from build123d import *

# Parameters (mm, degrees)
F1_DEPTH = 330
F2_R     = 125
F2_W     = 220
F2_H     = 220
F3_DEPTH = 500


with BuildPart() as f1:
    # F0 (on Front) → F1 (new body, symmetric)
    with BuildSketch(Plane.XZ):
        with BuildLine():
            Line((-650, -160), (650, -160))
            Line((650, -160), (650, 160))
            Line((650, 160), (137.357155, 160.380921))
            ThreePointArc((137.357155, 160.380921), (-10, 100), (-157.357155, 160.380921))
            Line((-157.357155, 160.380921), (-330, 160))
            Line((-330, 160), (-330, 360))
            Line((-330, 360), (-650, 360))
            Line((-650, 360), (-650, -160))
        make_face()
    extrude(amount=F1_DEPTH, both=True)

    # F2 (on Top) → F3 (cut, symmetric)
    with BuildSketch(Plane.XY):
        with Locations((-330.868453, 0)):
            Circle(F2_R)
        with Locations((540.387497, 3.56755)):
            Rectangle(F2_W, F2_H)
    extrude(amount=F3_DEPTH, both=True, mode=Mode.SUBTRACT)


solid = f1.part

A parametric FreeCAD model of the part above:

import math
import FreeCAD as App
import Part
import Sketcher
Q = App.Units.Quantity

doc = App.newDocument("Part")
body = doc.addObject("PartDesign::Body", "Body")

sketch1 = body.newObject("Sketcher::SketchObject", "Sketch")
sketch1.AttachmentSupport = (doc.getObject("XZ_Plane"), [""])
sketch1.MapMode = "FlatFace"
sketch1.addGeometry([
    Part.LineSegment(App.Vector(-650, -160, 0), App.Vector(650, -160, 0)),
    Part.LineSegment(App.Vector(650, -160, 0), App.Vector(650, 160, 0)),
    Part.LineSegment(App.Vector(650, 160, 0), App.Vector(137, 160, 0)),
    Part.ArcOfCircle(Part.Circle(App.Vector(-10, 310, 0), App.Vector(0, 0, 1), 210), math.radians(-135), math.radians(-45)),
    Part.LineSegment(App.Vector(-157, 160, 0), App.Vector(-330, 160, 0)),
    Part.LineSegment(App.Vector(-330, 160, 0), App.Vector(-330, 360, 0)),
    Part.LineSegment(App.Vector(-330, 360, 0), App.Vector(-650, 360, 0)),
    Part.LineSegment(App.Vector(-650, 360, 0), App.Vector(-650, -160, 0)),
], False)
sketch1.addConstraint([
    Sketcher.Constraint("Coincident", 0, 2, 1, 1),
    Sketcher.Constraint("Coincident", 1, 2, 2, 1),
    Sketcher.Constraint("Coincident", 2, 2, 3, 2),
    Sketcher.Constraint("Coincident", 3, 1, 4, 1),
    Sketcher.Constraint("Coincident", 4, 2, 5, 1),
    Sketcher.Constraint("Coincident", 5, 2, 6, 1),
    Sketcher.Constraint("Coincident", 6, 2, 7, 1),
    Sketcher.Constraint("Coincident", 7, 2, 0, 1),
    Sketcher.Constraint("Horizontal", 0),
    Sketcher.Constraint("Vertical", 1),
    Sketcher.Constraint("Vertical", 5),
    Sketcher.Constraint("Horizontal", 6),
    Sketcher.Constraint("Vertical", 7),
    Sketcher.Constraint("Symmetric", 1, 2, 7, 2, -1, 1),
    Sketcher.Constraint("Horizontal", 2, 2, 3, 1),
    Sketcher.Constraint("Horizontal", 1, 2, 4, 2),
    Sketcher.Constraint("Equal", 6, 1),
    Sketcher.Constraint("Radius", 3, Q("209.999999 mm")),
    Sketcher.Constraint("DistanceX", 0, 1, 0, 2, Q("1300 mm")),
    Sketcher.Constraint("DistanceX", 6, 2, 6, 1, Q("320 mm")),
    Sketcher.Constraint("DistanceY", 5, 1, 5, 2, Q("200 mm")),
    Sketcher.Constraint("DistanceX", 3, 3, -1, 1, Q("10 mm")),
    Sketcher.Constraint("DistanceY", -1, 1, 3, 3, Q("309.999999 mm")),
    Sketcher.Constraint("DistanceY", -1, 1, 2, 2, Q("160.380921 mm")),
])
pad1 = body.newObject("PartDesign::Pad", "Pad")
pad1.Profile = sketch1
pad1.Length = 660
pad1.Midplane = True

sketch2 = body.newObject("Sketcher::SketchObject", "Sketch001")
sketch2.AttachmentSupport = (doc.getObject("XY_Plane"), [""])
sketch2.MapMode = "FlatFace"
sketch2.addGeometry([
    Part.Circle(App.Vector(-331, 0, 0), App.Vector(0, 0, 1), 125),
    Part.LineSegment(App.Vector(430, 114, 0), App.Vector(430, -106, 0)),
    Part.LineSegment(App.Vector(430, -106, 0), App.Vector(650, -106, 0)),
    Part.LineSegment(App.Vector(650, -106, 0), App.Vector(650, 114, 0)),
    Part.LineSegment(App.Vector(650, 114, 0), App.Vector(430, 114, 0)),
], False)
sketch2.addConstraint([
    Sketcher.Constraint("Coincident", 1, 2, 2, 1),
    Sketcher.Constraint("Coincident", 2, 2, 3, 1),
    Sketcher.Constraint("Coincident", 3, 2, 4, 1),
    Sketcher.Constraint("Coincident", 4, 2, 1, 1),
    Sketcher.Constraint("Vertical", 1),
    Sketcher.Constraint("Horizontal", 2),
    Sketcher.Constraint("Vertical", 3),
    Sketcher.Constraint("Horizontal", 4),
    Sketcher.Constraint("PointOnObject", 0, 3, -1),
    Sketcher.Constraint("Equal", 4, 1),
    Sketcher.Constraint("Diameter", 0, Q("250 mm")),
    Sketcher.Constraint("DistanceX", 2, 1, 2, 2, Q("220 mm")),
    Sketcher.Constraint("DistanceY", 1, 2, -1, 1, Q("106.43245 mm")),
    Sketcher.Constraint("DistanceX", 0, 3, 1, 2, Q("761.25595 mm")),
    Sketcher.Constraint("DistanceX", 0, 3, -1, 1, Q("330.868453 mm")),
])
pocket1 = body.newObject("PartDesign::Pocket", "Pocket")
pocket1.Profile = sketch2
pocket1.Length = 1000
pocket1.Midplane = True

doc.recompute()
